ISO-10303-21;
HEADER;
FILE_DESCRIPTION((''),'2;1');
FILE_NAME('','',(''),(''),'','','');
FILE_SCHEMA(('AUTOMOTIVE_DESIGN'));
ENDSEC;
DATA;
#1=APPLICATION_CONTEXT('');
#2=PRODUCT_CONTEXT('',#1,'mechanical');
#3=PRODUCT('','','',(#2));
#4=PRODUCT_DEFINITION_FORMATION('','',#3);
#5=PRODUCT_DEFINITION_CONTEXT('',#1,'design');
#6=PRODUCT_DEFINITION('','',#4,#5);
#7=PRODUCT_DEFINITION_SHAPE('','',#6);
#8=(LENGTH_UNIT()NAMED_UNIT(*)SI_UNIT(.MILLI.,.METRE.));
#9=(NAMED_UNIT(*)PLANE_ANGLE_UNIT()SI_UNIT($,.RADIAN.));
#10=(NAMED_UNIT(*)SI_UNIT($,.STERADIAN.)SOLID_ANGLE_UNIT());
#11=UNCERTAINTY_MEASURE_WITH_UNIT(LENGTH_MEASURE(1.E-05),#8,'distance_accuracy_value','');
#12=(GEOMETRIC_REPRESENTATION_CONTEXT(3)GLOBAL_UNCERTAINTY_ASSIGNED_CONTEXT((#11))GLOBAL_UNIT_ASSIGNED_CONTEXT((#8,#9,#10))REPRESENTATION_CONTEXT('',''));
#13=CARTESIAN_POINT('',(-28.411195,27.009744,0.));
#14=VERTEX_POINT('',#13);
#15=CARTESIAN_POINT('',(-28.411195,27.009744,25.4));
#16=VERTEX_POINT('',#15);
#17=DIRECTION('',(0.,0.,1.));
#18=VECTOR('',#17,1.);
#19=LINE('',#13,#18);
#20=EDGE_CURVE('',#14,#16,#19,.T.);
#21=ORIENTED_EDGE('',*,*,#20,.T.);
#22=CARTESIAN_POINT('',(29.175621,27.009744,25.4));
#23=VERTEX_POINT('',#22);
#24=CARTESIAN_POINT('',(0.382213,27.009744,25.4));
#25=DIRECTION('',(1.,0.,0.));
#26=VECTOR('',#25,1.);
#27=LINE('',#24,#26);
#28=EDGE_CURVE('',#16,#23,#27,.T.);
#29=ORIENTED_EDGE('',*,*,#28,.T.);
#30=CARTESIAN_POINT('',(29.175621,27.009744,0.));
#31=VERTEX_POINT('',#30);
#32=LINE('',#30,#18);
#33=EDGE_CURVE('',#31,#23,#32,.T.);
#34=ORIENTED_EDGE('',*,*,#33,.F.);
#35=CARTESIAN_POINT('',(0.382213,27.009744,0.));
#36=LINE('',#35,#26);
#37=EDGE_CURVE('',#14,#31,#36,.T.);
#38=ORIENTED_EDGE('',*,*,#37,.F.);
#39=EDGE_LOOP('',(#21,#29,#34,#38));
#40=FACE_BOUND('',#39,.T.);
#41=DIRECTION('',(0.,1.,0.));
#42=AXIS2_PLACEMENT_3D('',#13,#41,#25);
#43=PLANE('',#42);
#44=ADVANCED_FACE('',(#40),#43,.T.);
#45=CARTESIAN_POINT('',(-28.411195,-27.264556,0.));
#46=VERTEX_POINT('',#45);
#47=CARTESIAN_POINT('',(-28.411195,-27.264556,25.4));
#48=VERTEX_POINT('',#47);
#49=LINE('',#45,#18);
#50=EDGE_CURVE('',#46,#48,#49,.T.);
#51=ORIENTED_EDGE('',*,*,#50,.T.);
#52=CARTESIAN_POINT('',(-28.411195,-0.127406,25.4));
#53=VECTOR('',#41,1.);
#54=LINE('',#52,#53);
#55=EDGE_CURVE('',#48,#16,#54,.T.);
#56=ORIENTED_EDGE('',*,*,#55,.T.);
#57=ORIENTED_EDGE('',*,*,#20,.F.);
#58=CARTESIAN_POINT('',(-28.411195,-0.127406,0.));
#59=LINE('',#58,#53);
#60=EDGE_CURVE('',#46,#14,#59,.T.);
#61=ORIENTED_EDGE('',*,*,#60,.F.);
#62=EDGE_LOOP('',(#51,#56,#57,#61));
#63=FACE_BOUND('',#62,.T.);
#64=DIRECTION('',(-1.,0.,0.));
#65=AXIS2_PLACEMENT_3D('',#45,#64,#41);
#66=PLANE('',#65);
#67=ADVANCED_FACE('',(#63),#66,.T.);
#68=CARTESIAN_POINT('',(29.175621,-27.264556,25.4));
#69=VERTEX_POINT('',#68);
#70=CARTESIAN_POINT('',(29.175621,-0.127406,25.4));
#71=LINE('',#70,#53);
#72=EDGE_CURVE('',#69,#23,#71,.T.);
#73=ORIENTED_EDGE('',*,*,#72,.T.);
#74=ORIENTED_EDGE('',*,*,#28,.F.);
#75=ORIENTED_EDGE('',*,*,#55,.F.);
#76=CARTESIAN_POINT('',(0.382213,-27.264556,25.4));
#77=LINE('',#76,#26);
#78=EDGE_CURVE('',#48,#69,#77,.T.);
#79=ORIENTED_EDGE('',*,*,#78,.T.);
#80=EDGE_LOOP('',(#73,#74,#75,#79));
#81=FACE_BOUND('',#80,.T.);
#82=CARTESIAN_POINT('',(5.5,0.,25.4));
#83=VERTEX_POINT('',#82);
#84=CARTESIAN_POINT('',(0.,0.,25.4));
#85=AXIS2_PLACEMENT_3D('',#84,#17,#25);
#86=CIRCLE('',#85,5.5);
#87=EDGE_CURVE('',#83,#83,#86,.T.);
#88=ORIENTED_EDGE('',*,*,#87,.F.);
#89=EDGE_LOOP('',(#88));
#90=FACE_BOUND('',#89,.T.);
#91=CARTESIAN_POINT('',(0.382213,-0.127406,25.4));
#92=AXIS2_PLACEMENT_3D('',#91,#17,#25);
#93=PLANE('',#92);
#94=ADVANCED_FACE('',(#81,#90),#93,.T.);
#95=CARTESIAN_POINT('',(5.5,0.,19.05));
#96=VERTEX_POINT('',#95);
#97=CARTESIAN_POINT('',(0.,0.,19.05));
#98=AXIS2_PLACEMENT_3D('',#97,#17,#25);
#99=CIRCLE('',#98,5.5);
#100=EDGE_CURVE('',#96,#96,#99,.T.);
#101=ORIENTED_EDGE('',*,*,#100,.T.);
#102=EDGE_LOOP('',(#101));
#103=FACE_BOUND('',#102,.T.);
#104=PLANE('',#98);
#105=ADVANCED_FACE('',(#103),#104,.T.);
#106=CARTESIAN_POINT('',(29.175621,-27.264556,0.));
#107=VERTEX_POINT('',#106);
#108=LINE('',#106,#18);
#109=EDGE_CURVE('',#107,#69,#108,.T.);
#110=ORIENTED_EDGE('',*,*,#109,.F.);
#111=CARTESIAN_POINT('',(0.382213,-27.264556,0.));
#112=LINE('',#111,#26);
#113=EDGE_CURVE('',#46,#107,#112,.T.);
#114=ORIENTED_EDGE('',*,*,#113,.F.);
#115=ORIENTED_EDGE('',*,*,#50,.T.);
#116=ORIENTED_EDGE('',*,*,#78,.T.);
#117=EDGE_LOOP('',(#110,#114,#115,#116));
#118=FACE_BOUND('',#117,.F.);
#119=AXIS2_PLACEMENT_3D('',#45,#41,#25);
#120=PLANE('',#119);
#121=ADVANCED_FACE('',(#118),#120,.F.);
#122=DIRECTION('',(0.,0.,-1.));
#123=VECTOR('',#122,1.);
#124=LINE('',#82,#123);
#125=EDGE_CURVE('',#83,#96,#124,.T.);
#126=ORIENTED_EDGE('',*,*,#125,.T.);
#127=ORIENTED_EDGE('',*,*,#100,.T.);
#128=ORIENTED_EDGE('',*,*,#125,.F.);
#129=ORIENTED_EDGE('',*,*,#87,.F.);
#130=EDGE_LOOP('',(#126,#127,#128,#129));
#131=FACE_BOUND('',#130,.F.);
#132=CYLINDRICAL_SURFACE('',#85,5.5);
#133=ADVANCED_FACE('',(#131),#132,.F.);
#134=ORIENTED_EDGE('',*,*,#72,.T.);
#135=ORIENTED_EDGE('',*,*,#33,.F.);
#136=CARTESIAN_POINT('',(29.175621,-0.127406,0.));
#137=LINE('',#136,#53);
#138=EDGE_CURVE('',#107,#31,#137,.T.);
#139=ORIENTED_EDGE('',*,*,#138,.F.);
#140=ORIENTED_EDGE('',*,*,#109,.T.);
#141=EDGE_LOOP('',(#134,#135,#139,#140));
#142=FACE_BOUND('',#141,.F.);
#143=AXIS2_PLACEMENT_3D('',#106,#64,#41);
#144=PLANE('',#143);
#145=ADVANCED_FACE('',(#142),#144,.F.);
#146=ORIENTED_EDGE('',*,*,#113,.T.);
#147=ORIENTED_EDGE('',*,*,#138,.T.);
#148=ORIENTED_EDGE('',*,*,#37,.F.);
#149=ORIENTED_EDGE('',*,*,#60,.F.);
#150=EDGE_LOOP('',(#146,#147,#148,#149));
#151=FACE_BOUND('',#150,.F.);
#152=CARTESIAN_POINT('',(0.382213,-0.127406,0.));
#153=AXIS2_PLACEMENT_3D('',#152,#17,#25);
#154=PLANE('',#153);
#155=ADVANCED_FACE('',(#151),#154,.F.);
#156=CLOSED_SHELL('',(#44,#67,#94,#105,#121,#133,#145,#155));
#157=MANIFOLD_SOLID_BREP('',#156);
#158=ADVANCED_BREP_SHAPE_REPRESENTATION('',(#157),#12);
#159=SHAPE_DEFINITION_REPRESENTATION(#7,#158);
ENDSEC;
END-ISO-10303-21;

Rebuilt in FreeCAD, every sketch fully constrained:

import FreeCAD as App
import Part
import Sketcher

V = App.Vector
Q = App.Units.Quantity

doc = App.newDocument("Part")
body = doc.addObject("PartDesign::Body", "Body")

# Sketch on XY plane
sketch1 = doc.addObject("Sketcher::SketchObject", "Sketch")
body.addObject(sketch1)
sketch1.AttachmentSupport = (doc.XY_Plane, [""])
sketch1.MapMode = "FlatFace"
sketch1.addGeometry([
    Part.LineSegment(V(-28, 27, 0), V(-28, -27, 0)),
    Part.LineSegment(V(-28, -27, 0), V(29, -27, 0)),
    Part.LineSegment(V(29, -27, 0), V(29, 27, 0)),
    Part.LineSegment(V(29, 27, 0), V(-28, 27, 0)),
], False)
sketch1.addConstraint([
    Sketcher.Constraint("Coincident", 0, 2, 1, 1),
    Sketcher.Constraint("Coincident", 1, 2, 2, 1),
    Sketcher.Constraint("Coincident", 2, 2, 3, 1),
    Sketcher.Constraint("Coincident", 3, 2, 0, 1),
    Sketcher.Constraint("Vertical", 0),
    Sketcher.Constraint("Horizontal", 1),
    Sketcher.Constraint("Vertical", 2),
    Sketcher.Constraint("Horizontal", 3),
    Sketcher.Constraint("DistanceY", 0, 2, 0, 1, 54.2743),
    Sketcher.Constraint("DistanceX", 1, 1, 1, 2, 57.586816),
    Sketcher.Constraint("DistanceX", -1, 1, 1, 2, 29.175621),
    Sketcher.Constraint("DistanceY", 0, 2, -1, 1, 27.264556),
])
pad1 = doc.addObject("PartDesign::Pad", "Pad")
body.addObject(pad1)
pad1.Profile = sketch1
pad1.Length = Q("1 in")

# Sketch on XY plane
sketch2 = doc.addObject("Sketcher::SketchObject", "Sketch001")
body.addObject(sketch2)
sketch2.AttachmentSupport = (doc.XY_Plane, [""])
sketch2.MapMode = "FlatFace"
sketch2.AttachmentOffset = App.Placement(V(0, 0, 1 * 25.4), App.Rotation())
sketch2.addGeometry(Part.Circle(V(0, 0, 0), V(0, 0, 1), 6), False)
sketch2.addConstraint([
    Sketcher.Constraint("Coincident", 0, 3, -1, 1),
    Sketcher.Constraint("Diameter", 0, 11.0),
])
pocket1 = doc.addObject("PartDesign::Pocket", "Pocket")
body.addObject(pocket1)
pocket1.Profile = sketch2
pocket1.Length = Q("0.25 in")

doc.recompute()
